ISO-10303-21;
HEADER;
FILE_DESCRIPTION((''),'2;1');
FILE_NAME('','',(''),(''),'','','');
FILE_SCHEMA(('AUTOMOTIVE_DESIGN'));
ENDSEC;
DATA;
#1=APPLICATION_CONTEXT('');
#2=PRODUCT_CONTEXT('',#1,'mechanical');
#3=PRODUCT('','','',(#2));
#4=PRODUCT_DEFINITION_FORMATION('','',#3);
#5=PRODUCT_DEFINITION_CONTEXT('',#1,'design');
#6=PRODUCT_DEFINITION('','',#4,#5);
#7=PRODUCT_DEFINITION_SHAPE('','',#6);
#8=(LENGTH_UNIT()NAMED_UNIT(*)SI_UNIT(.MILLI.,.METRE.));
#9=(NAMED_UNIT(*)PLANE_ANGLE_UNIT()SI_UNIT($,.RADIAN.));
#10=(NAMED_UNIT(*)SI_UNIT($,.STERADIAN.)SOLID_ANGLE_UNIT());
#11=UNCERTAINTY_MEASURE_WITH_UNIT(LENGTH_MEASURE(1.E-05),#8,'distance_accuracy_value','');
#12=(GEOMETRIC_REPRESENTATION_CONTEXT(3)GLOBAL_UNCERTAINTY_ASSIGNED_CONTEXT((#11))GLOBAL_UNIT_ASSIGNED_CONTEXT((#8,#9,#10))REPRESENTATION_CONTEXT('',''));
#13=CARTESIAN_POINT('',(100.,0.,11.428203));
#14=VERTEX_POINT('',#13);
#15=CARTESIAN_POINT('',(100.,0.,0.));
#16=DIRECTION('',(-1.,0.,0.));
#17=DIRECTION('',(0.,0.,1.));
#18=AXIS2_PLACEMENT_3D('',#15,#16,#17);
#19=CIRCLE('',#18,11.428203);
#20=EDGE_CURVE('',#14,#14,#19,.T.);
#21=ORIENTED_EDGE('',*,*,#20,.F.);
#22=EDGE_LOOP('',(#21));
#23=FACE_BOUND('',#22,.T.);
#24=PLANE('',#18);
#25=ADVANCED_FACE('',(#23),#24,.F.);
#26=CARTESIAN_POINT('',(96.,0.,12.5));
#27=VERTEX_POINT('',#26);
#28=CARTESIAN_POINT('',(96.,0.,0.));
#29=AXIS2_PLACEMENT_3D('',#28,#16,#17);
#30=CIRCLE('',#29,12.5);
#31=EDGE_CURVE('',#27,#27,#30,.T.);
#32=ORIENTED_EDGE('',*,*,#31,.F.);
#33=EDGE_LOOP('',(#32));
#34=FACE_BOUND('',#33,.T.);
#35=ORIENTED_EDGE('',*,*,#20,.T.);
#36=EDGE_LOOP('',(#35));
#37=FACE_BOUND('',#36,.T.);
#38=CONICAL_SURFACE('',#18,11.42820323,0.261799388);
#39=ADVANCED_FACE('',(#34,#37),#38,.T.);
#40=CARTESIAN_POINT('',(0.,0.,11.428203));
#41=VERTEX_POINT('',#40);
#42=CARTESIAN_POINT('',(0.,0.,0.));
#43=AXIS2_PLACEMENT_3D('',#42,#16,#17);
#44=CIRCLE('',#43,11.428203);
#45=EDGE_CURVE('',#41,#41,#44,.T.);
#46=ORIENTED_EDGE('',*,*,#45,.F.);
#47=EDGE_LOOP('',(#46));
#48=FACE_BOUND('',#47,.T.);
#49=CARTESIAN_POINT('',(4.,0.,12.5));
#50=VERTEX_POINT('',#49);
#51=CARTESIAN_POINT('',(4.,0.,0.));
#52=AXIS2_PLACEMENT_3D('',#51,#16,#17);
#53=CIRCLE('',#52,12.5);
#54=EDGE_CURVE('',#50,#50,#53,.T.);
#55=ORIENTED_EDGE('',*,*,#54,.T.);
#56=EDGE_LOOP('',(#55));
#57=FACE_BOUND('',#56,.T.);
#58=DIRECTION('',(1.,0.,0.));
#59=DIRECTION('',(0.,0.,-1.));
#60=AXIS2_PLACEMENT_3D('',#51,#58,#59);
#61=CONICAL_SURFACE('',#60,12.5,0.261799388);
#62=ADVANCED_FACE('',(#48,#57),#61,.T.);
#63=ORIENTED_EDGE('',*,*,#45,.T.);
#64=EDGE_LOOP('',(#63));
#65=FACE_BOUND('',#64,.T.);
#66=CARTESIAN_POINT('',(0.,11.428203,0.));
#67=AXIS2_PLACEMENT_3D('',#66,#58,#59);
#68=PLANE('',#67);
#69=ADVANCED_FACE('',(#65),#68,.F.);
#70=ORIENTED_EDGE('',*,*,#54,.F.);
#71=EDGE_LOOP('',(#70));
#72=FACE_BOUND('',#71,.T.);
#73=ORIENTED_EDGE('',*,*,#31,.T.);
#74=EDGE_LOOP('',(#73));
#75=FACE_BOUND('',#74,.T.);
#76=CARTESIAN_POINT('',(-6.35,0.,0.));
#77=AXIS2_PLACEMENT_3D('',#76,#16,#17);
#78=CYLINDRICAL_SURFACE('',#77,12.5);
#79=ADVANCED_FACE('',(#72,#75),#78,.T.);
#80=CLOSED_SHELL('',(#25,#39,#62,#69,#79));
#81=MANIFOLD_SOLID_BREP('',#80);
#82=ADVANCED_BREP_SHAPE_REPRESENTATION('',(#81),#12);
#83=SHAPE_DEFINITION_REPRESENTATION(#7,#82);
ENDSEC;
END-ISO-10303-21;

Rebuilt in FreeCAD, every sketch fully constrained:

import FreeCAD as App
import Part
import Sketcher
from FreeCAD import Vector
Q = App.Units.Quantity


def add_polygon(sketch, points):
    """Adds a closed chain of lines whose ends are joined by coincident constraints."""
    first, n = sketch.GeometryCount, len(points)
    for a, b in zip(points, points[1:] + points[:1]):
        sketch.addGeometry(Part.LineSegment(App.Vector(*a, 0), App.Vector(*b, 0)), False)
    for i in range(n):
        sketch.addConstraint(Sketcher.Constraint("Coincident", first + i, 2, first + (i + 1) % n, 1))

doc = App.newDocument("Part")
params = doc.addObject("Spreadsheet::Sheet", "Params")
for row, (alias, value) in enumerate([
    ("sketch1_width", "100 mm"),
    ("sketch1_width2", "92 mm"),
    ("revolution_angle", "360 deg"),
], start=1):
    params.set(f"A{row}", alias)
    params.set(f"B{row}", "=" + value)
    params.setAlias(f"B{row}", alias)

body = doc.addObject("PartDesign::Body", "Body")

# Sketch on XY plane
sketch1 = body.newObject("Sketcher::SketchObject", "Sketch")
sketch1.AttachmentSupport = (doc.getObject("XY_Plane"), [""])
sketch1.MapMode = "FlatFace"
add_polygon(sketch1, [(0, 0), (100, 0), (100, 11.428203), (96, 12.5), (4, 12.5), (0, 11.428203)])  # lines 0-5
sketch1.addConstraint([
    Sketcher.Constraint("Horizontal", 0),
    Sketcher.Constraint("Vertical", 1),
    Sketcher.Constraint("Horizontal", 3),
    Sketcher.Constraint("Vertical", 5),
    Sketcher.Constraint("Coincident", 5, 2, -1, 1),
    Sketcher.Constraint("Horizontal", 1, 2, 4, 2),
    Sketcher.Constraint("Equal", 2, 4),
    Sketcher.Constraint("DistanceX", 0, 1, 0, 2, Q("100 mm")),
    Sketcher.Constraint("DistanceX", 3, 2, 3, 1, Q("92 mm")),
    Sketcher.Constraint("Angle", 2, Q("165 deg")),
    Sketcher.Constraint("DistanceY", -1, 1, 2, 2, Q("12.5 mm")),
])
sketch1.setExpression("Constraints[13]", "Params.sketch1_width")
sketch1.setExpression("Constraints[14]", "Params.sketch1_width2")
revolution = body.newObject("PartDesign::Revolution", "Revolution")
revolution.Profile = sketch1
revolution.ReferenceAxis = (sketch1, ["H_Axis"])
revolution.setExpression("Angle", "Params.revolution_angle")

doc.recompute()
